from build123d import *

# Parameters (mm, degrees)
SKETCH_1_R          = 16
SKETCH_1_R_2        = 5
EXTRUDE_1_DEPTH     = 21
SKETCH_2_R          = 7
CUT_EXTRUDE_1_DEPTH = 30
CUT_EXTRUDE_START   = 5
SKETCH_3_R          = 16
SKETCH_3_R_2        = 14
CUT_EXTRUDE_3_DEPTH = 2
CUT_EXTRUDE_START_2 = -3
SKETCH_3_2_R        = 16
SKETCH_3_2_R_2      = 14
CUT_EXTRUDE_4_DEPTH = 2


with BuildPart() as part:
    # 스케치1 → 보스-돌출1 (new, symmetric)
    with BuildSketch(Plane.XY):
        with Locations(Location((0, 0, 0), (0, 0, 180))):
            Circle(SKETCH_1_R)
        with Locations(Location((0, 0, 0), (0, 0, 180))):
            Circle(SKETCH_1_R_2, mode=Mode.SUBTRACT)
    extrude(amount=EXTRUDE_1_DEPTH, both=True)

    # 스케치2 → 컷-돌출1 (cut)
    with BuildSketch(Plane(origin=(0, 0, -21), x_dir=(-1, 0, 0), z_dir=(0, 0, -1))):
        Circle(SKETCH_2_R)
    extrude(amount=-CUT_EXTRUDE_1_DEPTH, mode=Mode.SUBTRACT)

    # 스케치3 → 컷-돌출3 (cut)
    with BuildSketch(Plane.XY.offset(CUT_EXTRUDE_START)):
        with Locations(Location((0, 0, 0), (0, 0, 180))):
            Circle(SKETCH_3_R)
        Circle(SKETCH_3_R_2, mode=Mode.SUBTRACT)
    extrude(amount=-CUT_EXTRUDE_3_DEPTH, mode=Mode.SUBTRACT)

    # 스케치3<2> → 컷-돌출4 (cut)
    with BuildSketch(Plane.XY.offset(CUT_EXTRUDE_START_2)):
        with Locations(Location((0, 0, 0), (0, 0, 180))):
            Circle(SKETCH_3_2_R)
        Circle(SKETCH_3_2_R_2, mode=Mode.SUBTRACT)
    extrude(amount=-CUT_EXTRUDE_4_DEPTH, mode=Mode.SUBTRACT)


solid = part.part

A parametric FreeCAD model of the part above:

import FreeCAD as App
import Part
import Sketcher

V = App.Vector
Q = App.Units.Quantity

doc = App.newDocument("Part")
body = doc.addObject("PartDesign::Body", "Body")

# Sketch on XY plane
sketch1 = doc.addObject("Sketcher::SketchObject", "Sketch")
body.addObject(sketch1)
sketch1.AttachmentSupport = (doc.XY_Plane, [""])
sketch1.MapMode = "FlatFace"
sketch1.addGeometry(Part.Circle(V(0, 0, 0), V(0, 0, 1), 16), False)
sketch1.addGeometry(Part.Circle(V(0, 0, 0), V(0, 0, 1), 5), False)
sketch1.addConstraint(Sketcher.Constraint("Coincident", 0, 3, -1, 1))
sketch1.addConstraint(Sketcher.Constraint("Coincident", 1, 3, -1, 1))
sketch1.addConstraint(Sketcher.Constraint("Diameter", 0, Q("32 mm")))
sketch1.addConstraint(Sketcher.Constraint("Diameter", 1, Q("10 mm")))
pad1 = doc.addObject("PartDesign::Pad", "Pad")
body.addObject(pad1)
pad1.Profile = sketch1
pad1.Length = 42
pad1.Midplane = True

# Sketch on XY plane
sketch2 = doc.addObject("Sketcher::SketchObject", "Sketch001")
body.addObject(sketch2)
sketch2.AttachmentSupport = (doc.XY_Plane, [""])
sketch2.MapMode = "FlatFace"
sketch2.AttachmentOffset = App.Placement(V(0, 0, -21), App.Rotation())
sketch2.addGeometry(Part.Circle(V(0, 0, 0), V(0, 0, 1), 7), False)
sketch2.addConstraint(Sketcher.Constraint("Coincident", 0, 3, -1, 1))
sketch2.addConstraint(Sketcher.Constraint("Diameter", 0, Q("14 mm")))
pocket1 = doc.addObject("PartDesign::Pocket", "Pocket")
body.addObject(pocket1)
pocket1.Profile = sketch2
pocket1.Length = 30
pocket1.Reversed = True

# Sketch on XY plane
sketch3 = doc.addObject("Sketcher::SketchObject", "Sketch002")
body.addObject(sketch3)
sketch3.AttachmentSupport = (doc.XY_Plane, [""])
sketch3.MapMode = "FlatFace"
sketch3.AttachmentOffset = App.Placement(V(0, 0, 5), App.Rotation())
sketch3.addGeometry(Part.Circle(V(0, 0, 0), V(0, 0, 1), 16), False)
sketch3.addGeometry(Part.Circle(V(0, 0, 0), V(0, 0, 1), 14), False)
sketch3.addConstraint(Sketcher.Constraint("Coincident", 0, 3, -1, 1))
sketch3.addConstraint(Sketcher.Constraint("Coincident", 1, 3, -1, 1))
sketch3.addConstraint(Sketcher.Constraint("Diameter", 0, Q("32 mm")))
sketch3.addConstraint(Sketcher.Constraint("Diameter", 1, Q("28 mm")))
pocket2 = doc.addObject("PartDesign::Pocket", "Pocket001")
body.addObject(pocket2)
pocket2.Profile = sketch3
pocket2.Length = 2

# Sketch on XY plane
sketch4 = doc.addObject("Sketcher::SketchObject", "Sketch003")
body.addObject(sketch4)
sketch4.AttachmentSupport = (doc.XY_Plane, [""])
sketch4.MapMode = "FlatFace"
sketch4.AttachmentOffset = App.Placement(V(0, 0, -3), App.Rotation())
sketch4.addGeometry(Part.Circle(V(0, 0, 0), V(0, 0, 1), 16), False)
sketch4.addGeometry(Part.Circle(V(0, 0, 0), V(0, 0, 1), 14), False)
sketch4.addConstraint(Sketcher.Constraint("Coincident", 0, 3, -1, 1))
sketch4.addConstraint(Sketcher.Constraint("Coincident", 1, 3, -1, 1))
sketch4.addConstraint(Sketcher.Constraint("Diameter", 0, Q("32 mm")))
sketch4.addConstraint(Sketcher.Constraint("Diameter", 1, Q("28 mm")))
pocket3 = doc.addObject("PartDesign::Pocket", "Pocket002")
body.addObject(pocket3)
pocket3.Profile = sketch4
pocket3.Length = 2

doc.recompute()
